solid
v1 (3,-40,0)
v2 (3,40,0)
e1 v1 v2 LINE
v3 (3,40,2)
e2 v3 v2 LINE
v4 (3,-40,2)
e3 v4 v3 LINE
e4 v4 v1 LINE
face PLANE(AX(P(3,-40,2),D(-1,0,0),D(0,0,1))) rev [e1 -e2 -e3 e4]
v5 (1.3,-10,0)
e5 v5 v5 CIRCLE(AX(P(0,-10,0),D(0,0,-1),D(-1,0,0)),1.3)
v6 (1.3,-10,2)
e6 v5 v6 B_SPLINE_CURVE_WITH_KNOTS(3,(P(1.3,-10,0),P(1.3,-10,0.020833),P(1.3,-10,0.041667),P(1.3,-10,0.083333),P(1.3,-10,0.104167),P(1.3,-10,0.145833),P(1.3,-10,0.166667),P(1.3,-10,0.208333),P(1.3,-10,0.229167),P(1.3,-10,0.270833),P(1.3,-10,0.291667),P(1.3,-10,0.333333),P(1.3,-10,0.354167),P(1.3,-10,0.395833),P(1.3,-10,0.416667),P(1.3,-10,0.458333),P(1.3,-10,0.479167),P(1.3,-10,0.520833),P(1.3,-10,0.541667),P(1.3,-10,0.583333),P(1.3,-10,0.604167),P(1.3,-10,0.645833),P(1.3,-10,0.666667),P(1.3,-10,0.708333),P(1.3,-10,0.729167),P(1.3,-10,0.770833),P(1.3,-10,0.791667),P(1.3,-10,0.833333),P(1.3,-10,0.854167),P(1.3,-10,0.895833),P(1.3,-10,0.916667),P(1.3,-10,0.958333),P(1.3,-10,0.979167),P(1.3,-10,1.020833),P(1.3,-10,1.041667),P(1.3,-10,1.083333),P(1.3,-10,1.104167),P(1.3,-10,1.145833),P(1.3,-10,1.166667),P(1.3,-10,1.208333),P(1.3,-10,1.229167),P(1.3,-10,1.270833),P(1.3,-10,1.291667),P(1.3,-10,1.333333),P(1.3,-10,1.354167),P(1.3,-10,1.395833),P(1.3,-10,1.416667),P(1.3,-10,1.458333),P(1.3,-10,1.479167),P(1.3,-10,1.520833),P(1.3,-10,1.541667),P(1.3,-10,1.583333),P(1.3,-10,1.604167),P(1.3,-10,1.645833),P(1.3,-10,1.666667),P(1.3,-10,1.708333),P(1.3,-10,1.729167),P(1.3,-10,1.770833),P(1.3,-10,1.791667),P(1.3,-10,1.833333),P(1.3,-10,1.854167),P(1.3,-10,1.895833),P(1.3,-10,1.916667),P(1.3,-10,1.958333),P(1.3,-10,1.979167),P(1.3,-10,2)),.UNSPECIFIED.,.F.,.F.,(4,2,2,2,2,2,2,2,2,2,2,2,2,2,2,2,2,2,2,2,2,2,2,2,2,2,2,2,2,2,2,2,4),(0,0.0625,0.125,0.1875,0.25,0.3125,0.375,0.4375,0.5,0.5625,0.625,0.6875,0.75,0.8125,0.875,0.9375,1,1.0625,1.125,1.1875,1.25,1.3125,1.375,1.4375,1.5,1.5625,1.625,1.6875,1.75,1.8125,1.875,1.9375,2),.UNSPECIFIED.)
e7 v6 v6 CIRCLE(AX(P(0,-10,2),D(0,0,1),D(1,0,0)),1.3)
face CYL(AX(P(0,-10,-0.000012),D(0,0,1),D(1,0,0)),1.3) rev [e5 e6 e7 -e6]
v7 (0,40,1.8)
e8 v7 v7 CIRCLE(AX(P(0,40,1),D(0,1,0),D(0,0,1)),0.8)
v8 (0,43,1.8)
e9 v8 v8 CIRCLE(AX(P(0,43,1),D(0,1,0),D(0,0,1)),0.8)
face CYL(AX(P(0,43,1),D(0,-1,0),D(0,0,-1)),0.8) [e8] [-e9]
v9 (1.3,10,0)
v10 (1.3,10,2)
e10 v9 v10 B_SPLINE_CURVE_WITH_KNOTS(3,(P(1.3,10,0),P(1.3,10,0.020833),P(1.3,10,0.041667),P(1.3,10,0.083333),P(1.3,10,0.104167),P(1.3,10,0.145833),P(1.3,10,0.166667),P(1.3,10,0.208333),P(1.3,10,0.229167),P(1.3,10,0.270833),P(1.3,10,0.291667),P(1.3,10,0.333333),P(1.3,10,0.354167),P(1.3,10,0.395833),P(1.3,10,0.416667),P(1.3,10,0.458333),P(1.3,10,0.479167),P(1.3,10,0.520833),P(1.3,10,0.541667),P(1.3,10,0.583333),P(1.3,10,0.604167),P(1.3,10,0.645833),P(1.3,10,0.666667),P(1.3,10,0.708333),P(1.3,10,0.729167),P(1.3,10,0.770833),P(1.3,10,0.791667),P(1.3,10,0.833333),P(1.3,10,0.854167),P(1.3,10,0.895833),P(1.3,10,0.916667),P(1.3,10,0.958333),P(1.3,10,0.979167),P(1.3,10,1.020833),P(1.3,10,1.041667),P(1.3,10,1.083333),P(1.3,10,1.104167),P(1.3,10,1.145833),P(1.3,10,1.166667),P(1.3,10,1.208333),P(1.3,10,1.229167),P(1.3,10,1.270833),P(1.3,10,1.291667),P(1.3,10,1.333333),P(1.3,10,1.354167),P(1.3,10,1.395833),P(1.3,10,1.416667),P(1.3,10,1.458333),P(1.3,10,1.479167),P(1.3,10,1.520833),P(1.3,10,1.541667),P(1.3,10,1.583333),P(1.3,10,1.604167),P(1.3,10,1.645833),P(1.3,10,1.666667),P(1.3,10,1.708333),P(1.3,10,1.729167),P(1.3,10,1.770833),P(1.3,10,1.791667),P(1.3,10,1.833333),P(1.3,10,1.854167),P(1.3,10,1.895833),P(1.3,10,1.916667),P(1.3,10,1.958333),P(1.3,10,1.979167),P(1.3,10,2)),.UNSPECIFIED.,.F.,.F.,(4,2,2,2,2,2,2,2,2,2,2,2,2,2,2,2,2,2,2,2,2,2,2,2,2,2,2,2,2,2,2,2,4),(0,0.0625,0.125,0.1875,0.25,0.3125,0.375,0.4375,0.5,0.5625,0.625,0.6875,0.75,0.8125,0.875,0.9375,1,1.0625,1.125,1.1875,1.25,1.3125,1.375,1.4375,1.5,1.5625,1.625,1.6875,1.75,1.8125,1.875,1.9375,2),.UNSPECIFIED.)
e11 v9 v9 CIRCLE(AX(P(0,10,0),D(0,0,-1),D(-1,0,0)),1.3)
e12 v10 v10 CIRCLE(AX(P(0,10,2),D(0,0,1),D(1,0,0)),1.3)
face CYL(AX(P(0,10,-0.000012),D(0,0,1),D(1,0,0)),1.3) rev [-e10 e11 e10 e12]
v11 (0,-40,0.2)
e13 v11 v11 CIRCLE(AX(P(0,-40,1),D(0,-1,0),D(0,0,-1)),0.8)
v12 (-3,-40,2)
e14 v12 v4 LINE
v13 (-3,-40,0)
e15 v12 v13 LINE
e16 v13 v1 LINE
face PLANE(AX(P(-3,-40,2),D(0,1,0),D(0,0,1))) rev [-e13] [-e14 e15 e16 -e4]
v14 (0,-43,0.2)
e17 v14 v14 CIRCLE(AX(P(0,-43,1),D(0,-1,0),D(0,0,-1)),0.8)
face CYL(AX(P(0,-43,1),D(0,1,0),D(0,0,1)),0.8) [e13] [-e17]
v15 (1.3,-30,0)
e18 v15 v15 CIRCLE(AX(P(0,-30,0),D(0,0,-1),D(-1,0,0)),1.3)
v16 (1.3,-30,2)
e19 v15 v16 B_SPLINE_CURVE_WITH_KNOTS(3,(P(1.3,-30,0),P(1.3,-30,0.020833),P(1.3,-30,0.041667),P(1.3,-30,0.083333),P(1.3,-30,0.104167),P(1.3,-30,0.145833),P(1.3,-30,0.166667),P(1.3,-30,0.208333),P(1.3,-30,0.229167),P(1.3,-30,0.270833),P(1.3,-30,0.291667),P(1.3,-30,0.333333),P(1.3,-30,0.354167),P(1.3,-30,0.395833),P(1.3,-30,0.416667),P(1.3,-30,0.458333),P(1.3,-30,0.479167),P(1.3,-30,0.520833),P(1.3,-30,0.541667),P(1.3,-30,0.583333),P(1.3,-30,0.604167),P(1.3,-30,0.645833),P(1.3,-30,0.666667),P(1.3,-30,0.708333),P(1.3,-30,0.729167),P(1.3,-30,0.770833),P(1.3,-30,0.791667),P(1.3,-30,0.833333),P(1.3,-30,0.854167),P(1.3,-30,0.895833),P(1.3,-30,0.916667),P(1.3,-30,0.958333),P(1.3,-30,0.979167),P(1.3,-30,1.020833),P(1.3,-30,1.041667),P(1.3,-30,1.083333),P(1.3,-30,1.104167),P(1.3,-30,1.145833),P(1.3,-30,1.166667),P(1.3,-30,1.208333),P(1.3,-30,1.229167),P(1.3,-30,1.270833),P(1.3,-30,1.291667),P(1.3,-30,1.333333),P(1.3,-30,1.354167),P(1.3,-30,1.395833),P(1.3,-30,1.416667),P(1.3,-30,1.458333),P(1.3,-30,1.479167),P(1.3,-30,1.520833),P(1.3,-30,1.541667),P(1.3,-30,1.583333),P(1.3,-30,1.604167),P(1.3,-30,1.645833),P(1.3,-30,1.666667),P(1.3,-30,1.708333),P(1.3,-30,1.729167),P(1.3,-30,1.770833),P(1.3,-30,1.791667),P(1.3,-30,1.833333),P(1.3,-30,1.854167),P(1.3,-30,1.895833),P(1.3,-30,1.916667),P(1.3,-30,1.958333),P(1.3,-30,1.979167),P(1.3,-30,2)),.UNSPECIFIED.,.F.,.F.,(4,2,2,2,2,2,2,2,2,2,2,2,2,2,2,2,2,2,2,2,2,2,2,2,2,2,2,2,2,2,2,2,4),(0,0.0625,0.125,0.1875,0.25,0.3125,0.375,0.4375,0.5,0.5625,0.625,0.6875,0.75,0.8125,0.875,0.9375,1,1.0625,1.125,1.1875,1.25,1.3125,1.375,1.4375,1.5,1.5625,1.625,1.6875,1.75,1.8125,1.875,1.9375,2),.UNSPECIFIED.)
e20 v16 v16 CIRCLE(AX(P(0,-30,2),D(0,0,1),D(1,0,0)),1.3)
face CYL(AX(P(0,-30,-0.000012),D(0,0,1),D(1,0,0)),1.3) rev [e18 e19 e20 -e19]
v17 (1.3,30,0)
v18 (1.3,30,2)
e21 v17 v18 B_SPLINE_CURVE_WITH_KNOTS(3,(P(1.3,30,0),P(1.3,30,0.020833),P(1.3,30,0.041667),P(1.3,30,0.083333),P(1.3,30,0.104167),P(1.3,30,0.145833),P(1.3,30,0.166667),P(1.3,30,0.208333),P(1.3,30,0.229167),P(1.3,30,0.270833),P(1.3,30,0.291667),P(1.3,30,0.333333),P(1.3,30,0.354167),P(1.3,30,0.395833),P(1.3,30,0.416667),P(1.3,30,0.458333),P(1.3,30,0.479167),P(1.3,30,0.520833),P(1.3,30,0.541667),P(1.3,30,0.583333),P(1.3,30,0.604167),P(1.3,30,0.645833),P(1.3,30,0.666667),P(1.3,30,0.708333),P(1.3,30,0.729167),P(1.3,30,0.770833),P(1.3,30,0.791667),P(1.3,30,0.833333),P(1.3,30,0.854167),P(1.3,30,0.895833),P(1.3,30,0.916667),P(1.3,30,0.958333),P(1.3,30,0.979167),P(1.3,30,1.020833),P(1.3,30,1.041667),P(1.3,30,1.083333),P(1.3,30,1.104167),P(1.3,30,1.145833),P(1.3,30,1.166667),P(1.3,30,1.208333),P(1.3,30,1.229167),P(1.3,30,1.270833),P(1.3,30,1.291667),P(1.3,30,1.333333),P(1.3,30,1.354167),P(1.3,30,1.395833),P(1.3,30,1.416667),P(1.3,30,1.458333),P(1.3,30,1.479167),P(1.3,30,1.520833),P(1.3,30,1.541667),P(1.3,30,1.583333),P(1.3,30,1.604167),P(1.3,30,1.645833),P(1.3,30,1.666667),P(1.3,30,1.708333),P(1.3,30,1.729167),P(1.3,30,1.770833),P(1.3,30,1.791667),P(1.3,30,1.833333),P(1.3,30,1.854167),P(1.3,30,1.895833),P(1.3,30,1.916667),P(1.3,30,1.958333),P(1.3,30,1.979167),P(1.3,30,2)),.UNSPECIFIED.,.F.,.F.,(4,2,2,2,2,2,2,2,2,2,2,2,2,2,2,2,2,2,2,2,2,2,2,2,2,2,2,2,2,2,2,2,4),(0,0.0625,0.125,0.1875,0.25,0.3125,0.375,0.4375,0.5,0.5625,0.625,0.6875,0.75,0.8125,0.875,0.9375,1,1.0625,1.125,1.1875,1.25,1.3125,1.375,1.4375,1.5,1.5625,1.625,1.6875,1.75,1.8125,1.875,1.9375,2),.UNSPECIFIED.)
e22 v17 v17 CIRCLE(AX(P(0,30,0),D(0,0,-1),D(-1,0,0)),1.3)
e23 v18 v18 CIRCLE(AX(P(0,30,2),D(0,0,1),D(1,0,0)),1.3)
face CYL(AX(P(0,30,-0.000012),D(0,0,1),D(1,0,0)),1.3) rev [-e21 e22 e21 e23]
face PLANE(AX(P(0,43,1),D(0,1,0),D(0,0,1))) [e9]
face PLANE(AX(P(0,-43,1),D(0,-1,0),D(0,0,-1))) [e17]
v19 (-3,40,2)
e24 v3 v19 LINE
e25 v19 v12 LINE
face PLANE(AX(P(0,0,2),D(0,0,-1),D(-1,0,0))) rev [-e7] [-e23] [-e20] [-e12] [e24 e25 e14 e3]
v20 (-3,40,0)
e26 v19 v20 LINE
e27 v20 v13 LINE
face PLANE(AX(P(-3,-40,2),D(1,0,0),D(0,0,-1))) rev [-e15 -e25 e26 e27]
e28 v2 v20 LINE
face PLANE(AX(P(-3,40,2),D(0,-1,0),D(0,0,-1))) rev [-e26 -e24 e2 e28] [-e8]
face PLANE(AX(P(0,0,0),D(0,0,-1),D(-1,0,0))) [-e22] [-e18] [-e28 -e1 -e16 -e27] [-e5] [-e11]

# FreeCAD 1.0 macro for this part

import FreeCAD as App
import Part
import Sketcher

doc = App.newDocument("Part")
params = doc.addObject("Spreadsheet::Sheet", "Params")
for row, (alias, value) in enumerate([
    ("sketch1_width", "6 mm"),
    ("sketch1_height", "80 mm"),
    ("pad1_length", "2 mm"),
    ("sketch2_diameter", "2.6 mm"),
    ("sketch3_diameter", "1.6 mm"),
    ("pad2_length", "3 mm"),
    ("sketch4_diameter", "1.6 mm"),
    ("pad3_length", "3 mm"),
], start=1):
    params.set(f"A{row}", alias)
    params.set(f"B{row}", "=" + value)
    params.setAlias(f"B{row}", alias)

body = doc.addObject("PartDesign::Body", "Body")

# Sketch on XY plane
sketch1 = doc.addObject("Sketcher::SketchObject", "Sketch")
body.addObject(sketch1)
sketch1.AttachmentSupport = (doc.XY_Plane, [""])
sketch1.MapMode = "FlatFace"
sketch1.addGeometry(Part.LineSegment(App.Vector(-3, 40, 0), App.Vector(-3, -40, 0)), False)
sketch1.addGeometry(Part.LineSegment(App.Vector(-3, -40, 0), App.Vector(3, -40, 0)), False)
sketch1.addGeometry(Part.LineSegment(App.Vector(3, -40, 0), App.Vector(3, 40, 0)), False)
sketch1.addGeometry(Part.LineSegment(App.Vector(3, 40, 0), App.Vector(-3, 40, 0)), False)
sketch1.addConstraint(Sketcher.Constraint("Coincident", 0, 2, 1, 1))
sketch1.addConstraint(Sketcher.Constraint("Coincident", 1, 2, 2, 1))
sketch1.addConstraint(Sketcher.Constraint("Coincident", 2, 2, 3, 1))
sketch1.addConstraint(Sketcher.Constraint("Coincident", 3, 2, 0, 1))
sketch1.addConstraint(Sketcher.Constraint("Vertical", 0))
sketch1.addConstraint(Sketcher.Constraint("Horizontal", 1))
sketch1.addConstraint(Sketcher.Constraint("Vertical", 2))
sketch1.addConstraint(Sketcher.Constraint("Horizontal", 3))
sketch1.addConstraint(Sketcher.Constraint("Symmetric", 0, 2, 2, 2, -1, 1))
sketch1.addConstraint(Sketcher.Constraint("DistanceX", 1, 1, 1, 2, 6.0))
sketch1.addConstraint(Sketcher.Constraint("DistanceY", 0, 2, 0, 1, 80.0))
sketch1.setExpression("Constraints[9]", "Params.sketch1_width")
sketch1.setExpression("Constraints[10]", "Params.sketch1_height")
pad1 = doc.addObject("PartDesign::Pad", "Pad")
body.addObject(pad1)
pad1.Profile = sketch1
pad1.setExpression("Length", "Params.pad1_length")

# Sketch on XY plane
sketch2 = doc.addObject("Sketcher::SketchObject", "Sketch001")
body.addObject(sketch2)
sketch2.AttachmentSupport = (doc.XY_Plane, [""])
sketch2.MapMode = "FlatFace"
sketch2.addGeometry(Part.Circle(App.Vector(0, -30, 0), App.Vector(0, 0, 1), 1.3), False)
sketch2.addGeometry(Part.Circle(App.Vector(0, -10, 0), App.Vector(0, 0, 1), 1.3), False)
sketch2.addGeometry(Part.Circle(App.Vector(0, 10, 0), App.Vector(0, 0, 1), 1.3), False)
sketch2.addGeometry(Part.Circle(App.Vector(0, 30, 0), App.Vector(0, 0, 1), 1.3), False)
sketch2.addConstraint(Sketcher.Constraint("Equal", 0, 1))
sketch2.addConstraint(Sketcher.Constraint("Equal", 1, 2))
sketch2.addConstraint(Sketcher.Constraint("Equal", 2, 3))
sketch2.addConstraint(Sketcher.Constraint("Symmetric", 1, 3, 2, 3, -1, 1))
sketch2.addConstraint(Sketcher.Constraint("Symmetric", 0, 3, 3, 3, -1, 1))
sketch2.addConstraint(Sketcher.Constraint("PointOnObject", 0, 3, -2))
sketch2.addConstraint(Sketcher.Constraint("PointOnObject", 1, 3, -2))
sketch2.addConstraint(Sketcher.Constraint("Diameter", 0, 2.6))
sketch2.addConstraint(Sketcher.Constraint("DistanceY", 0, 3, -1, 1, 30.0))
sketch2.addConstraint(Sketcher.Constraint("DistanceY", 1, 3, -1, 1, 10.0))
sketch2.setExpression("Constraints[7]", "Params.sketch2_diameter")
pocket1 = doc.addObject("PartDesign::Pocket", "Pocket")
body.addObject(pocket1)
pocket1.Profile = sketch2
pocket1.Type = "ThroughAll"
pocket1.Midplane = True

# Sketch on XZ plane
sketch3 = doc.addObject("Sketcher::SketchObject", "Sketch002")
body.addObject(sketch3)
sketch3.AttachmentSupport = (doc.XZ_Plane, [""])
sketch3.MapMode = "FlatFace"
sketch3.AttachmentOffset = App.Placement(App.Vector(0, 0, -40), App.Rotation())
sketch3.addGeometry(Part.Circle(App.Vector(0, 1, 0), App.Vector(0, 0, 1), 0.8), False)
sketch3.addConstraint(Sketcher.Constraint("PointOnObject", 0, 3, -2))
sketch3.addConstraint(Sketcher.Constraint("Diameter", 0, 1.6))
sketch3.addConstraint(Sketcher.Constraint("DistanceY", -1, 1, 0, 3, 1.0))
sketch3.setExpression("Constraints[1]", "Params.sketch3_diameter")
pad2 = doc.addObject("PartDesign::Pad", "Pad001")
body.addObject(pad2)
pad2.Profile = sketch3
pad2.setExpression("Length", "Params.pad2_length")
pad2.Reversed = True

# Sketch on XZ plane
sketch4 = doc.addObject("Sketcher::SketchObject", "Sketch003")
body.addObject(sketch4)
sketch4.AttachmentSupport = (doc.XZ_Plane, [""])
sketch4.MapMode = "FlatFace"
sketch4.AttachmentOffset = App.Placement(App.Vector(0, 0, 43), App.Rotation())
sketch4.addGeometry(Part.Circle(App.Vector(0, 1, 0), App.Vector(0, 0, 1), 0.8), False)
sketch4.addConstraint(Sketcher.Constraint("PointOnObject", 0, 3, -2))
sketch4.addConstraint(Sketcher.Constraint("Diameter", 0, 1.6))
sketch4.addConstraint(Sketcher.Constraint("DistanceY", -1, 1, 0, 3, 1.0))
sketch4.setExpression("Constraints[1]", "Params.sketch4_diameter")
pad3 = doc.addObject("PartDesign::Pad", "Pad002")
body.addObject(pad3)
pad3.Profile = sketch4
pad3.setExpression("Length", "Params.pad3_length")
pad3.Reversed = True

doc.recompute()
